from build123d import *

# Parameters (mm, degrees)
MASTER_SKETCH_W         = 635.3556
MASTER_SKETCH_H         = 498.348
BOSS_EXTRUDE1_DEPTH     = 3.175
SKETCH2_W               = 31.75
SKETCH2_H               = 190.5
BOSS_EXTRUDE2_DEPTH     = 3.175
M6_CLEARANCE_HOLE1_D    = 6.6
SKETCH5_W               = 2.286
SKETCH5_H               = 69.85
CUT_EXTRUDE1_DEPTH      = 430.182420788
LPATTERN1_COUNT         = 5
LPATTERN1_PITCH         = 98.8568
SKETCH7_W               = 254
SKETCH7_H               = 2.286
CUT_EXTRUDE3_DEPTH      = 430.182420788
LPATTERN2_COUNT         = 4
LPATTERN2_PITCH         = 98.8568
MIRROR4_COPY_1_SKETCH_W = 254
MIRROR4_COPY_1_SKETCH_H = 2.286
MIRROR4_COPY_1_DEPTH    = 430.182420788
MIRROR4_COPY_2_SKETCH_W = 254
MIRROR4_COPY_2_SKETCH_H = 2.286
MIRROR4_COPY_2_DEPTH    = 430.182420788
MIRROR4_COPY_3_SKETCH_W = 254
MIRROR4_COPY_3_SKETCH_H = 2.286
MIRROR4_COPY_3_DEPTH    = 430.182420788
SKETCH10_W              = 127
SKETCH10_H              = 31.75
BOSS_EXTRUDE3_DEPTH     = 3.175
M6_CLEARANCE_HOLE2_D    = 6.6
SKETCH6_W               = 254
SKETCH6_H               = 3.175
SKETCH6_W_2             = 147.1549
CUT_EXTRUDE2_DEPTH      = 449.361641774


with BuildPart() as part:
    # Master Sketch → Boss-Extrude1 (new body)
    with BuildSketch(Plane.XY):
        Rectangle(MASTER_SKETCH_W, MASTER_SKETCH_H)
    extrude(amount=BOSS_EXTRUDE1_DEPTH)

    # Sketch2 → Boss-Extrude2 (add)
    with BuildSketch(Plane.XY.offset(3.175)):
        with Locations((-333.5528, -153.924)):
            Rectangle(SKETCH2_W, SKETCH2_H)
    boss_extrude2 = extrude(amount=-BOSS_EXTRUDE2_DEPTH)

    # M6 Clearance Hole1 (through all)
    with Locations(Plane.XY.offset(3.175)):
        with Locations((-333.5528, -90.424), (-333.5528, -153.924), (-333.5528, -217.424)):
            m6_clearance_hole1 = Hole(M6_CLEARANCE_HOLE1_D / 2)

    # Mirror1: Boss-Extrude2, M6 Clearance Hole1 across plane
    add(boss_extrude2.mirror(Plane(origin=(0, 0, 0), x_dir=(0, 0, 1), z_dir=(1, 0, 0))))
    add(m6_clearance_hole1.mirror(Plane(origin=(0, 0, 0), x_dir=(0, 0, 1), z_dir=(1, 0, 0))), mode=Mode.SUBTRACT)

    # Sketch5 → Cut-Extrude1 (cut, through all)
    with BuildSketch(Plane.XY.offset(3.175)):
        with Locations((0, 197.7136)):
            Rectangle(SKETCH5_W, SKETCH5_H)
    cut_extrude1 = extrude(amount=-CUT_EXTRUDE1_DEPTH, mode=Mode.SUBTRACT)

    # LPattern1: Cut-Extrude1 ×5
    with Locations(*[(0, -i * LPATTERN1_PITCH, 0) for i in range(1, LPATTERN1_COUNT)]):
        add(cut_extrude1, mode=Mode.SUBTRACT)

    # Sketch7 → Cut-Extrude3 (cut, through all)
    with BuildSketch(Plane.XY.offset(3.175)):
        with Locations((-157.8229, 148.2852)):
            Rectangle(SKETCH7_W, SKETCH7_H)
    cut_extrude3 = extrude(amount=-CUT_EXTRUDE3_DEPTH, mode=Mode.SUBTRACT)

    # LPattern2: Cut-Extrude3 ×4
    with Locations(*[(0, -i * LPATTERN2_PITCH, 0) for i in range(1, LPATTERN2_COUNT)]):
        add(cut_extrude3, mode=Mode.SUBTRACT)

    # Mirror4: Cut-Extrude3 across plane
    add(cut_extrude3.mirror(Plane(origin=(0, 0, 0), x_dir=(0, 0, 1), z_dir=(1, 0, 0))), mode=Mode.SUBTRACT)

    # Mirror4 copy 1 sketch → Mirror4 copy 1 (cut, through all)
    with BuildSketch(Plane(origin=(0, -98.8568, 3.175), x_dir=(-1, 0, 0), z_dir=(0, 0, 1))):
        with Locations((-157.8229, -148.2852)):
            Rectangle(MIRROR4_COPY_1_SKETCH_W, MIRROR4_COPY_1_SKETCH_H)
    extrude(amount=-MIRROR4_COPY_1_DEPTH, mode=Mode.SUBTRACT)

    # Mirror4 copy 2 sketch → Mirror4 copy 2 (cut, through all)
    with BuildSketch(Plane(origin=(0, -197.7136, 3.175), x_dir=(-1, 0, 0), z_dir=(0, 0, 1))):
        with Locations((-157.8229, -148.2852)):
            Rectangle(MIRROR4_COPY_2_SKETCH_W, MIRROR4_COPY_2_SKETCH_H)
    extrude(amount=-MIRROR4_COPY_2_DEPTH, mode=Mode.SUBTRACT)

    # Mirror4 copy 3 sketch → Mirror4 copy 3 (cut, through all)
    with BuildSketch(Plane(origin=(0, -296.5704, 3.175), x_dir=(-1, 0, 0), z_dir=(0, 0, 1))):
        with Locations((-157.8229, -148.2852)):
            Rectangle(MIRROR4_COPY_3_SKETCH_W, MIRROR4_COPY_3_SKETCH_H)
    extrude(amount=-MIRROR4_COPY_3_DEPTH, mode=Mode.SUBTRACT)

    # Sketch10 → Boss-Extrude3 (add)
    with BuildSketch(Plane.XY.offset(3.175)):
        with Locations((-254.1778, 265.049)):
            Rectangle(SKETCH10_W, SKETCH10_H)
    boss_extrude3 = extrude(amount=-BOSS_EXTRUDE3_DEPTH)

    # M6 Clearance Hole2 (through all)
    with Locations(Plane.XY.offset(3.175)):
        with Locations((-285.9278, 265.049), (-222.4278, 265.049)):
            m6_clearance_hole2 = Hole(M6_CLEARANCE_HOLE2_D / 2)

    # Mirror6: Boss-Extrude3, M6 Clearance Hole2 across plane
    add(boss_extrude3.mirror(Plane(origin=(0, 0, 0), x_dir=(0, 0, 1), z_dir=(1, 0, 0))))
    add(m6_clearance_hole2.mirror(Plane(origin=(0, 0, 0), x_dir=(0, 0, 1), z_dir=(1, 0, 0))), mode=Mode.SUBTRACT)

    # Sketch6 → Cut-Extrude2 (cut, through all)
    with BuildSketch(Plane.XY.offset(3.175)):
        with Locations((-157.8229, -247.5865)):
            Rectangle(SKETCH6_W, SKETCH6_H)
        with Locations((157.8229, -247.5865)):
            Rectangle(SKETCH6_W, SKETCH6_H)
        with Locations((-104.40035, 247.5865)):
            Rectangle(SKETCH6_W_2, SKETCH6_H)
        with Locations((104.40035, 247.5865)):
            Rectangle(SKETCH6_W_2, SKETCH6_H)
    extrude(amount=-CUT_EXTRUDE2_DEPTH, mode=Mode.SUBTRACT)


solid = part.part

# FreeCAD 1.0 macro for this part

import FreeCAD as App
import Part
import Sketcher
from FreeCAD import Vector
Q = App.Units.Quantity

doc = App.newDocument("Part")
body = doc.addObject("PartDesign::Body", "Body")

sketch1 = body.newObject("Sketcher::SketchObject", "Sketch")
sketch1.AttachmentSupport = (doc.getObject("XY_Plane"), [""])
sketch1.MapMode = "FlatFace"
sketch1.addGeometry([
    Part.LineSegment(Vector(-318, 249, 0), Vector(-318, -249, 0)),
    Part.LineSegment(Vector(-318, -249, 0), Vector(318, -249, 0)),
    Part.LineSegment(Vector(318, -249, 0), Vector(318, 249, 0)),
    Part.LineSegment(Vector(318, 249, 0), Vector(-318, 249, 0)),
], False)
sketch1.addConstraint([
    Sketcher.Constraint("Coincident", 0, 2, 1, 1),
    Sketcher.Constraint("Coincident", 1, 2, 2, 1),
    Sketcher.Constraint("Coincident", 2, 2, 3, 1),
    Sketcher.Constraint("Coincident", 3, 2, 0, 1),
    Sketcher.Constraint("Vertical", 0),
    Sketcher.Constraint("Horizontal", 1),
    Sketcher.Constraint("Vertical", 2),
    Sketcher.Constraint("Horizontal", 3),
    Sketcher.Constraint("Symmetric", 0, 2, 2, 2, -1, 1),
    Sketcher.Constraint("DistanceY", 0, 2, 0, 1, Q("19.62 in")),
    Sketcher.Constraint("DistanceX", 1, 1, 1, 2, Q("25.014 in")),
])
pad1 = body.newObject("PartDesign::Pad", "Pad")
pad1.Profile = sketch1
pad1.Length = Q("0.125 in")

sketch2 = body.newObject("Sketcher::SketchObject", "Sketch001")
sketch2.AttachmentSupport = (doc.getObject("XY_Plane"), [""])
sketch2.MapMode = "FlatFace"
sketch2.AttachmentOffset = App.Placement(Vector(0, 0, 0.125 * 25.4), App.Rotation())
sketch2.addGeometry([
    Part.LineSegment(Vector(-349, -59, 0), Vector(-349, -249, 0)),
    Part.LineSegment(Vector(-349, -249, 0), Vector(-318, -249, 0)),
    Part.LineSegment(Vector(-318, -249, 0), Vector(-318, -59, 0)),
    Part.LineSegment(Vector(-318, -59, 0), Vector(-349, -59, 0)),
], False)
sketch2.addConstraint([
    Sketcher.Constraint("Coincident", 0, 2, 1, 1),
    Sketcher.Constraint("Coincident", 1, 2, 2, 1),
    Sketcher.Constraint("Coincident", 2, 2, 3, 1),
    Sketcher.Constraint("Coincident", 3, 2, 0, 1),
    Sketcher.Constraint("Vertical", 0),
    Sketcher.Constraint("Horizontal", 1),
    Sketcher.Constraint("Vertical", 2),
    Sketcher.Constraint("Horizontal", 3),
    Sketcher.Constraint("DistanceY", 0, 2, 0, 1, Q("7.5 in")),
    Sketcher.Constraint("DistanceX", 1, 1, 1, 2, Q("1.25 in")),
    Sketcher.Constraint("DistanceY", 0, 2, -1, 1, Q("9.81 in")),
    Sketcher.Constraint("DistanceX", 0, 2, -1, 1, Q("13.757 in")),
])
pad2 = body.newObject("PartDesign::Pad", "Pad001")
pad2.Profile = sketch2
pad2.Length = Q("0.125 in")
pad2.Reversed = True

sketch3 = body.newObject("Sketcher::SketchObject", "Sketch002")
sketch3.AttachmentSupport = (doc.getObject("XY_Plane"), [""])
sketch3.MapMode = "FlatFace"
sketch3.AttachmentOffset = App.Placement(Vector(0, 0, 0.125 * 25.4), App.Rotation())
sketch3.addGeometry([
    Part.Circle(Vector(-333.6, -90.4, 0), Vector(0, 0, 1), 3.3),
    Part.Circle(Vector(-333.6, -153.9, 0), Vector(0, 0, 1), 3.3),
    Part.Circle(Vector(-333.6, -217.4, 0), Vector(0, 0, 1), 3.3),
], False)
sketch3.addConstraint([
    Sketcher.Constraint("Equal", 0, 1),
    Sketcher.Constraint("Equal", 1, 2),
    Sketcher.Constraint("Vertical", 0, 3, 1, 3),
    Sketcher.Constraint("Vertical", 1, 3, 2, 3),
    Sketcher.Constraint("DistanceY", 2, 3, 0, 3, Q("5 in")),
    Sketcher.Constraint("DistanceY", 1, 3, 0, 3, Q("2.5 in")),
    Sketcher.Constraint("Diameter", 0, Q("6.6 mm")),
    Sketcher.Constraint("DistanceY", 0, 3, -1, 1, Q("3.56 in")),
    Sketcher.Constraint("DistanceX", 0, 3, -1, 1, Q("13.132 in")),
])
doc.recompute()
hole = body.newObject("PartDesign::Hole", "Hole")
hole.Profile = sketch3
hole.ThreadType = "None"
hole.Diameter = 6.6
hole.DepthType = "ThroughAll"
doc.recompute()

mirrored = body.newObject("PartDesign::Mirrored", "Mirrored")
mirrored.Originals = [pad2, hole]
mirrored.MirrorPlane = (doc.getObject("YZ_Plane"), [""])
body.Tip = mirrored

sketch4 = body.newObject("Sketcher::SketchObject", "Sketch003")
sketch4.AttachmentSupport = (doc.getObject("XY_Plane"), [""])
sketch4.MapMode = "FlatFace"
sketch4.AttachmentOffset = App.Placement(Vector(0, 0, 0.125 * 25.4), App.Rotation())
sketch4.addGeometry([
    Part.LineSegment(Vector(-1.1, 232.6, 0), Vector(-1.1, 162.8, 0)),
    Part.LineSegment(Vector(-1.1, 162.8, 0), Vector(1.1, 162.8, 0)),
    Part.LineSegment(Vector(1.1, 162.8, 0), Vector(1.1, 232.6, 0)),
    Part.LineSegment(Vector(1.1, 232.6, 0), Vector(-1.1, 232.6, 0)),
], False)
sketch4.addConstraint([
    Sketcher.Constraint("Coincident", 0, 2, 1, 1),
    Sketcher.Constraint("Coincident", 1, 2, 2, 1),
    Sketcher.Constraint("Coincident", 2, 2, 3, 1),
    Sketcher.Constraint("Coincident", 3, 2, 0, 1),
    Sketcher.Constraint("Vertical", 0),
    Sketcher.Constraint("Horizontal", 1),
    Sketcher.Constraint("Vertical", 2),
    Sketcher.Constraint("Horizontal", 3),
    Sketcher.Constraint("DistanceX", 1, 1, 1, 2, Q("0.09 in")),
    Sketcher.Constraint("DistanceY", 0, 2, 0, 1, Q("2.75 in")),
    Sketcher.Constraint("DistanceX", 0, 2, -1, 1, Q("0.045 in")),
    Sketcher.Constraint("DistanceY", -1, 1, 0, 2, Q("6.409 in")),
])
pocket1 = body.newObject("PartDesign::Pocket", "Pocket")
pocket1.Profile = sketch4
pocket1.Type = "ThroughAll"
doc.recompute()

linearpattern = body.newObject("PartDesign::LinearPattern", "LinearPattern")
linearpattern.Originals = [pocket1]
linearpattern.Direction = (doc.getObject("Y_Axis"), [""])
linearpattern.Mode = "offset"
linearpattern.Offset = Q("3.892 in")
linearpattern.Occurrences = 5
linearpattern.Reversed = True
body.Tip = linearpattern

sketch5 = body.newObject("Sketcher::SketchObject", "Sketch004")
sketch5.AttachmentSupport = (doc.getObject("XY_Plane"), [""])
sketch5.MapMode = "FlatFace"
sketch5.AttachmentOffset = App.Placement(Vector(0, 0, 0.125 * 25.4), App.Rotation())
sketch5.addGeometry([
    Part.LineSegment(Vector(-284.8, 149.4, 0), Vector(-284.8, 147.1, 0)),
    Part.LineSegment(Vector(-284.8, 147.1, 0), Vector(-30.8, 147.1, 0)),
    Part.LineSegment(Vector(-30.8, 147.1, 0), Vector(-30.8, 149.4, 0)),
    Part.LineSegment(Vector(-30.8, 149.4, 0), Vector(-284.8, 149.4, 0)),
], False)
sketch5.addConstraint([
    Sketcher.Constraint("Coincident", 0, 2, 1, 1),
    Sketcher.Constraint("Coincident", 1, 2, 2, 1),
    Sketcher.Constraint("Coincident", 2, 2, 3, 1),
    Sketcher.Constraint("Coincident", 3, 2, 0, 1),
    Sketcher.Constraint("Vertical", 0),
    Sketcher.Constraint("Horizontal", 1),
    Sketcher.Constraint("Vertical", 2),
    Sketcher.Constraint("Horizontal", 3),
    Sketcher.Constraint("DistanceX", 1, 1, 1, 2, Q("10 in")),
    Sketcher.Constraint("DistanceY", 0, 2, 0, 1, Q("0.09 in")),
    Sketcher.Constraint("DistanceY", -1, 1, 0, 2, Q("5.793 in")),
    Sketcher.Constraint("DistanceX", 0, 2, -1, 1, Q("11.2135 in")),
])
pocket2 = body.newObject("PartDesign::Pocket", "Pocket001")
pocket2.Profile = sketch5
pocket2.Type = "ThroughAll"
doc.recompute()

linearpattern2 = body.newObject("PartDesign::LinearPattern", "LinearPattern001")
linearpattern2.Originals = [pocket2]
linearpattern2.Direction = (doc.getObject("Y_Axis"), [""])
linearpattern2.Mode = "offset"
linearpattern2.Offset = Q("3.892 in")
linearpattern2.Occurrences = 4
linearpattern2.Reversed = True
body.Tip = linearpattern2
doc.recompute()

mirrored2 = body.newObject("PartDesign::Mirrored", "Mirrored001")
mirrored2.Originals = [pocket2]
mirrored2.MirrorPlane = (doc.getObject("YZ_Plane"), [""])
body.Tip = mirrored2

sketch6 = body.newObject("Sketcher::SketchObject", "Sketch005")
sketch6.AttachmentSupport = (doc.getObject("XY_Plane"), [""])
sketch6.MapMode = "FlatFace"
sketch6.AttachmentOffset = App.Placement(Vector(0, 0, 0.125 * 25.4), App.Rotation())
sketch6.addGeometry([
    Part.LineSegment(Vector(284.8, 48.3, 0), Vector(284.8, 50.6, 0)),
    Part.LineSegment(Vector(284.8, 50.6, 0), Vector(30.8, 50.6, 0)),
    Part.LineSegment(Vector(30.8, 50.6, 0), Vector(30.8, 48.3, 0)),
    Part.LineSegment(Vector(30.8, 48.3, 0), Vector(284.8, 48.3, 0)),
], False)
sketch6.addConstraint([
    Sketcher.Constraint("Coincident", 0, 2, 1, 1),
    Sketcher.Constraint("Coincident", 1, 2, 2, 1),
    Sketcher.Constraint("Coincident", 2, 2, 3, 1),
    Sketcher.Constraint("Coincident", 3, 2, 0, 1),
    Sketcher.Constraint("Vertical", 0),
    Sketcher.Constraint("Horizontal", 1),
    Sketcher.Constraint("Vertical", 2),
    Sketcher.Constraint("Horizontal", 3),
    Sketcher.Constraint("DistanceX", 1, 2, 1, 1, Q("10 in")),
    Sketcher.Constraint("DistanceY", 0, 1, 0, 2, Q("0.09 in")),
    Sketcher.Constraint("DistanceY", -1, 1, 0, 2, Q("1.991 in")),
    Sketcher.Constraint("DistanceX", -1, 1, 0, 2, Q("11.2135 in")),
])
pocket3 = body.newObject("PartDesign::Pocket", "Pocket002")
pocket3.Profile = sketch6
pocket3.Type = "ThroughAll"

sketch7 = body.newObject("Sketcher::SketchObject", "Sketch006")
sketch7.AttachmentSupport = (doc.getObject("XY_Plane"), [""])
sketch7.MapMode = "FlatFace"
sketch7.AttachmentOffset = App.Placement(Vector(0, 0, 0.125 * 25.4), App.Rotation())
sketch7.addGeometry([
    Part.LineSegment(Vector(284.8, -50.6, 0), Vector(284.8, -48.3, 0)),
    Part.LineSegment(Vector(284.8, -48.3, 0), Vector(30.8, -48.3, 0)),
    Part.LineSegment(Vector(30.8, -48.3, 0), Vector(30.8, -50.6, 0)),
    Part.LineSegment(Vector(30.8, -50.6, 0), Vector(284.8, -50.6, 0)),
], False)
sketch7.addConstraint([
    Sketcher.Constraint("Coincident", 0, 2, 1, 1),
    Sketcher.Constraint("Coincident", 1, 2, 2, 1),
    Sketcher.Constraint("Coincident", 2, 2, 3, 1),
    Sketcher.Constraint("Coincident", 3, 2, 0, 1),
    Sketcher.Constraint("Vertical", 0),
    Sketcher.Constraint("Horizontal", 1),
    Sketcher.Constraint("Vertical", 2),
    Sketcher.Constraint("Horizontal", 3),
    Sketcher.Constraint("DistanceX", 1, 2, 1, 1, Q("10 in")),
    Sketcher.Constraint("DistanceY", 0, 1, 0, 2, Q("0.09 in")),
    Sketcher.Constraint("DistanceY", 0, 2, -1, 1, Q("1.901 in")),
    Sketcher.Constraint("DistanceX", -1, 1, 0, 2, Q("11.2135 in")),
])
pocket4 = body.newObject("PartDesign::Pocket", "Pocket003")
pocket4.Profile = sketch7
pocket4.Type = "ThroughAll"

sketch8 = body.newObject("Sketcher::SketchObject", "Sketch007")
sketch8.AttachmentSupport = (doc.getObject("XY_Plane"), [""])
sketch8.MapMode = "FlatFace"
sketch8.AttachmentOffset = App.Placement(Vector(0, 0, 0.125 * 25.4), App.Rotation())
sketch8.addGeometry([
    Part.LineSegment(Vector(284.8, -149.4, 0), Vector(284.8, -147.1, 0)),
    Part.LineSegment(Vector(284.8, -147.1, 0), Vector(30.8, -147.1, 0)),
    Part.LineSegment(Vector(30.8, -147.1, 0), Vector(30.8, -149.4, 0)),
    Part.LineSegment(Vector(30.8, -149.4, 0), Vector(284.8, -149.4, 0)),
], False)
sketch8.addConstraint([
    Sketcher.Constraint("Coincident", 0, 2, 1, 1),
    Sketcher.Constraint("Coincident", 1, 2, 2, 1),
    Sketcher.Constraint("Coincident", 2, 2, 3, 1),
    Sketcher.Constraint("Coincident", 3, 2, 0, 1),
    Sketcher.Constraint("Vertical", 0),
    Sketcher.Constraint("Horizontal", 1),
    Sketcher.Constraint("Vertical", 2),
    Sketcher.Constraint("Horizontal", 3),
    Sketcher.Constraint("DistanceX", 1, 2, 1, 1, Q("10 in")),
    Sketcher.Constraint("DistanceY", 0, 1, 0, 2, Q("0.09 in")),
    Sketcher.Constraint("DistanceY", 0, 2, -1, 1, Q("5.793 in")),
    Sketcher.Constraint("DistanceX", -1, 1, 0, 2, Q("11.2135 in")),
])
pocket5 = body.newObject("PartDesign::Pocket", "Pocket004")
pocket5.Profile = sketch8
pocket5.Type = "ThroughAll"

sketch9 = body.newObject("Sketcher::SketchObject", "Sketch008")
sketch9.AttachmentSupport = (doc.getObject("XY_Plane"), [""])
sketch9.MapMode = "FlatFace"
sketch9.AttachmentOffset = App.Placement(Vector(0, 0, 0.125 * 25.4), App.Rotation())
sketch9.addGeometry([
    Part.LineSegment(Vector(-318, 281, 0), Vector(-318, 249, 0)),
    Part.LineSegment(Vector(-318, 249, 0), Vector(-191, 249, 0)),
    Part.LineSegment(Vector(-191, 249, 0), Vector(-191, 281, 0)),
    Part.LineSegment(Vector(-191, 281, 0), Vector(-318, 281, 0)),
], False)
sketch9.addConstraint([
    Sketcher.Constraint("Coincident", 0, 2, 1, 1),
    Sketcher.Constraint("Coincident", 1, 2, 2, 1),
    Sketcher.Constraint("Coincident", 2, 2, 3, 1),
    Sketcher.Constraint("Coincident", 3, 2, 0, 1),
    Sketcher.Constraint("Vertical", 0),
    Sketcher.Constraint("Horizontal", 1),
    Sketcher.Constraint("Vertical", 2),
    Sketcher.Constraint("Horizontal", 3),
    Sketcher.Constraint("DistanceX", 1, 1, 1, 2, Q("5 in")),
    Sketcher.Constraint("DistanceY", 0, 2, 0, 1, Q("1.25 in")),
    Sketcher.Constraint("DistanceY", -1, 1, 0, 2, Q("9.81 in")),
    Sketcher.Constraint("DistanceX", 0, 2, -1, 1, Q("12.507 in")),
])
pad3 = body.newObject("PartDesign::Pad", "Pad002")
pad3.Profile = sketch9
pad3.Length = Q("0.125 in")
pad3.Reversed = True

sketch10 = body.newObject("Sketcher::SketchObject", "Sketch009")
sketch10.AttachmentSupport = (doc.getObject("XY_Plane"), [""])
sketch10.MapMode = "FlatFace"
sketch10.AttachmentOffset = App.Placement(Vector(0, 0, 0.125 * 25.4), App.Rotation())
sketch10.addGeometry([
    Part.Circle(Vector(-285.9, 265, 0), Vector(0, 0, 1), 3.3),
    Part.Circle(Vector(-222.4, 265, 0), Vector(0, 0, 1), 3.3),
], False)
sketch10.addConstraint([
    Sketcher.Constraint("Equal", 0, 1),
    Sketcher.Constraint("Horizontal", 0, 3, 1, 3),
    Sketcher.Constraint("DistanceX", 0, 3, 1, 3, Q("2.5 in")),
    Sketcher.Constraint("Diameter", 0, Q("6.6 mm")),
    Sketcher.Constraint("DistanceX", 0, 3, -1, 1, Q("11.257 in")),
    Sketcher.Constraint("DistanceY", -1, 1, 0, 3, Q("10.435 in")),
])
doc.recompute()
hole2 = body.newObject("PartDesign::Hole", "Hole001")
hole2.Profile = sketch10
hole2.ThreadType = "None"
hole2.Diameter = 6.6
hole2.DepthType = "ThroughAll"
doc.recompute()

mirrored3 = body.newObject("PartDesign::Mirrored", "Mirrored002")
mirrored3.Originals = [pad3, hole2]
mirrored3.MirrorPlane = (doc.getObject("YZ_Plane"), [""])
body.Tip = mirrored3

sketch11 = body.newObject("Sketcher::SketchObject", "Sketch010")
sketch11.AttachmentSupport = (doc.getObject("XY_Plane"), [""])
sketch11.MapMode = "FlatFace"
sketch11.AttachmentOffset = App.Placement(Vector(0, 0, 0.125 * 25.4), App.Rotation())
sketch11.addGeometry([
    Part.LineSegment(Vector(-284.8, -246, 0), Vector(-284.8, -249.2, 0)),
    Part.LineSegment(Vector(-284.8, -249.2, 0), Vector(-30.8, -249.2, 0)),
    Part.LineSegment(Vector(-30.8, -249.2, 0), Vector(-30.8, -246, 0)),
    Part.LineSegment(Vector(-30.8, -246, 0), Vector(-284.8, -246, 0)),
    Part.LineSegment(Vector(30.8, -246, 0), Vector(30.8, -249.2, 0)),
    Part.LineSegment(Vector(30.8, -249.2, 0), Vector(284.8, -249.2, 0)),
    Part.LineSegment(Vector(284.8, -249.2, 0), Vector(284.8, -246, 0)),
    Part.LineSegment(Vector(284.8, -246, 0), Vector(30.8, -246, 0)),
    Part.LineSegment(Vector(-178, 249.2, 0), Vector(-178, 246, 0)),
    Part.LineSegment(Vector(-178, 246, 0), Vector(-30.8, 246, 0)),
    Part.LineSegment(Vector(-30.8, 246, 0), Vector(-30.8, 249.2, 0)),
    Part.LineSegment(Vector(-30.8, 249.2, 0), Vector(-178, 249.2, 0)),
    Part.LineSegment(Vector(30.8, 249.2, 0), Vector(30.8, 246, 0)),
    Part.LineSegment(Vector(30.8, 246, 0), Vector(178, 246, 0)),
    Part.LineSegment(Vector(178, 246, 0), Vector(178, 249.2, 0)),
    Part.LineSegment(Vector(178, 249.2, 0), Vector(30.8, 249.2, 0)),
], False)
sketch11.addConstraint([
    Sketcher.Constraint("Coincident", 0, 2, 1, 1),
    Sketcher.Constraint("Coincident", 1, 2, 2, 1),
    Sketcher.Constraint("Coincident", 2, 2, 3, 1),
    Sketcher.Constraint("Coincident", 3, 2, 0, 1),
    Sketcher.Constraint("Coincident", 4, 2, 5, 1),
    Sketcher.Constraint("Coincident", 5, 2, 6, 1),
    Sketcher.Constraint("Coincident", 6, 2, 7, 1),
    Sketcher.Constraint("Coincident", 7, 2, 4, 1),
    Sketcher.Constraint("Coincident", 8, 2, 9, 1),
    Sketcher.Constraint("Coincident", 9, 2, 10, 1),
    Sketcher.Constraint("Coincident", 10, 2, 11, 1),
    Sketcher.Constraint("Coincident", 11, 2, 8, 1),
    Sketcher.Constraint("Coincident", 12, 2, 13, 1),
    Sketcher.Constraint("Coincident", 13, 2, 14, 1),
    Sketcher.Constraint("Coincident", 14, 2, 15, 1),
    Sketcher.Constraint("Coincident", 15, 2, 12, 1),
    Sketcher.Constraint("Vertical", 0),
    Sketcher.Constraint("Horizontal", 1),
    Sketcher.Constraint("Vertical", 2),
    Sketcher.Constraint("Horizontal", 3),
    Sketcher.Constraint("Vertical", 4),
    Sketcher.Constraint("Horizontal", 5),
    Sketcher.Constraint("Vertical", 6),
    Sketcher.Constraint("Horizontal", 7),
    Sketcher.Constraint("Vertical", 8),
    Sketcher.Constraint("Horizontal", 9),
    Sketcher.Constraint("Vertical", 10),
    Sketcher.Constraint("Horizontal", 11),
    Sketcher.Constraint("Vertical", 12),
    Sketcher.Constraint("Horizontal", 13),
    Sketcher.Constraint("Vertical", 14),
    Sketcher.Constraint("Horizontal", 15),
    Sketcher.Constraint("Symmetric", 7, 2, 9, 2, -1, 1),
    Sketcher.Constraint("Symmetric", 2, 2, 12, 2, -1, 1),
    Sketcher.Constraint("Symmetric", 1, 2, 4, 2, -2),
    Sketcher.Constraint("Symmetric", 3, 2, 6, 2, -2),
    Sketcher.Constraint("Symmetric", 11, 2, 14, 2, -2),
    Sketcher.Constraint("Equal", 6, 8),
    Sketcher.Constraint("DistanceX", 1, 1, 1, 2, Q("10 in")),
    Sketcher.Constraint("DistanceY", 0, 2, 0, 1, Q("0.125 in")),
    Sketcher.Constraint("DistanceY", 0, 2, -1, 1, Q("9.81 in")),
    Sketcher.Constraint("DistanceX", 9, 1, 9, 2, Q("5.7935 in")),
    Sketcher.Constraint("DistanceX", 8, 2, -1, 1, Q("7.007 in")),
])
pocket6 = body.newObject("PartDesign::Pocket", "Pocket005")
pocket6.Profile = sketch11
pocket6.Type = "ThroughAll"

doc.recompute()
